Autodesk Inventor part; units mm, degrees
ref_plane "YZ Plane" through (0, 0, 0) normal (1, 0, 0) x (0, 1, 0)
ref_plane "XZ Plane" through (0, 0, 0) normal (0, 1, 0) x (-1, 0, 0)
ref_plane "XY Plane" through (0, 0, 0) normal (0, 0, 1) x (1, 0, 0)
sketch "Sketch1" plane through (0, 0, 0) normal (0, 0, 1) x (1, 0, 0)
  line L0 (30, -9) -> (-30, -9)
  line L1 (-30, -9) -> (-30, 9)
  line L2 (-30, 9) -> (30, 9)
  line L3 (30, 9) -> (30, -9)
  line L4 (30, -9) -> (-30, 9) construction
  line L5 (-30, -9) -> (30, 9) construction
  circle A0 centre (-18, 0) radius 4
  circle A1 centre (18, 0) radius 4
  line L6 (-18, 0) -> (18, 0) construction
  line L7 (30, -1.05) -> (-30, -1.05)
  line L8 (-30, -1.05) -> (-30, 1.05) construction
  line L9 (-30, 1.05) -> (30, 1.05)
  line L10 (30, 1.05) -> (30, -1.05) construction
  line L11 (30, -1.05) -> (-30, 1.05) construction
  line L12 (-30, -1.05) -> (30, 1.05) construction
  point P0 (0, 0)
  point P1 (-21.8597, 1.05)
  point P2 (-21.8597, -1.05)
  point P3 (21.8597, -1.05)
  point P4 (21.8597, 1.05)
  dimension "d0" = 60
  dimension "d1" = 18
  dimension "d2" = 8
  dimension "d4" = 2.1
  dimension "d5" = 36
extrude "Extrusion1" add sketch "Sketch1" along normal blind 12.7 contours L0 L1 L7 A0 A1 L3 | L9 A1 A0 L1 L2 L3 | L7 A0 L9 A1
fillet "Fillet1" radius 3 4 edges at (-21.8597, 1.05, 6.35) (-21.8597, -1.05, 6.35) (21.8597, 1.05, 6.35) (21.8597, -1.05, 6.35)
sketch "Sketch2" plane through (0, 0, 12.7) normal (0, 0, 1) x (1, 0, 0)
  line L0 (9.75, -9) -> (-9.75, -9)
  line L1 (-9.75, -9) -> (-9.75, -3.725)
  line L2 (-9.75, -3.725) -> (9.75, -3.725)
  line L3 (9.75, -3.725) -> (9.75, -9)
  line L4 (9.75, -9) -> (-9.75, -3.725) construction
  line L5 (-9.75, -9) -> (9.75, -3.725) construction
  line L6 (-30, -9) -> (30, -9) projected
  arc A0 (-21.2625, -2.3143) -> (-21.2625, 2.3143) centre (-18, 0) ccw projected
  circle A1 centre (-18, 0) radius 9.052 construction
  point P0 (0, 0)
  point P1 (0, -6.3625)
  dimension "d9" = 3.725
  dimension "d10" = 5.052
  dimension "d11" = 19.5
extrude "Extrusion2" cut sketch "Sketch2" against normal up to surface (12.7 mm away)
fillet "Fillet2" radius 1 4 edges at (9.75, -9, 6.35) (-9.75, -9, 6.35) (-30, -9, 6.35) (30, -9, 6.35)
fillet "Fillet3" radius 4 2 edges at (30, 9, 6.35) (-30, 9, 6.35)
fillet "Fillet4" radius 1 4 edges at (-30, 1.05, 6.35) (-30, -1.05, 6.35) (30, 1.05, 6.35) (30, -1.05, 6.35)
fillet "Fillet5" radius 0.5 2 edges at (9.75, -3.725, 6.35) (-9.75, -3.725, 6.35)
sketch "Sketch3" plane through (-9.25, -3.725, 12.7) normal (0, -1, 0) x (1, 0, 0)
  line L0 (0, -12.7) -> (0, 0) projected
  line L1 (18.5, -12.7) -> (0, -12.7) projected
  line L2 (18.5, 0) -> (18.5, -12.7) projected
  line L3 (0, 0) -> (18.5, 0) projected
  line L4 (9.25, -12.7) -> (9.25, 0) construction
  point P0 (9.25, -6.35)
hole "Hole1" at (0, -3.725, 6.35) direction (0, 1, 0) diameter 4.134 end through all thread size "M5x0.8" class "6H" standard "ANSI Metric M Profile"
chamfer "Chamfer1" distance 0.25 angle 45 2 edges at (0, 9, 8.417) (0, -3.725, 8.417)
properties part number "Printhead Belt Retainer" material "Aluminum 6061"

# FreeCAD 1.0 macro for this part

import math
import FreeCAD as App
import Part
import Sketcher

V = App.Vector


def edges_at(feature, points):
    """Names of the edges that pass closest to the given points."""
    edges = feature.Shape.Edges
    near = lambda p: min(range(len(edges)), key=lambda i: edges[i].distToShape(Part.Vertex(*p))[0])
    return sorted({f"Edge{near(p) + 1}" for p in points})


def add_polygon(sketch, points):
    """Adds a closed chain of lines whose ends are joined by coincident constraints."""
    first, n = sketch.GeometryCount, len(points)
    for a, b in zip(points, points[1:] + points[:1]):
        sketch.addGeometry(Part.LineSegment(App.Vector(*a, 0), App.Vector(*b, 0)), False)
    for i in range(n):
        sketch.addConstraint(Sketcher.Constraint("Coincident", first + i, 2, first + (i + 1) % n, 1))

doc = App.newDocument("Part")
body = doc.addObject("PartDesign::Body", "Body")

# Sketch on XY plane
sketch1 = body.newObject("Sketcher::SketchObject", "Sketch")
sketch1.AttachmentSupport = (doc.getObject("XY_Plane"), [""])
sketch1.MapMode = "FlatFace"
sketch1.addGeometry([
    Part.LineSegment(V(-30, -9, 0), V(30, -9, 0)),  # 0
    Part.LineSegment(V(30, -9, 0), V(30, -1.05, 0)),  # 1
    Part.LineSegment(V(30, -1.05, 0), V(21.859728, -1.05, 0)),  # 2
    Part.ArcOfCircle(Part.Circle(V(18, 0, 0), V(0, 0, 1), 4), math.radians(15.218455), math.radians(344.781545)),  # 3
    Part.LineSegment(V(21.859728, 1.05, 0), V(30, 1.05, 0)),  # 4
    Part.LineSegment(V(30, 1.05, 0), V(30, 9, 0)),  # 5
    Part.LineSegment(V(30, 9, 0), V(-30, 9, 0)),  # 6
    Part.LineSegment(V(-30, 9, 0), V(-30, 1.05, 0)),  # 7
    Part.LineSegment(V(-30, 1.05, 0), V(-21.859728, 1.05, 0)),  # 8
    Part.ArcOfCircle(Part.Circle(V(-18, 0, 0), V(0, 0, 1), 4), math.radians(-164.781545), math.radians(164.781545)),  # 9
    Part.LineSegment(V(-21.859728, -1.05, 0), V(-30, -1.05, 0)),  # 10
    Part.LineSegment(V(-30, -1.05, 0), V(-30, -9, 0)),  # 11
], False)
sketch1.addConstraint([
    Sketcher.Constraint("Coincident", 0, 2, 1, 1),
    Sketcher.Constraint("Coincident", 1, 2, 2, 1),
    Sketcher.Constraint("Coincident", 2, 2, 3, 2),
    Sketcher.Constraint("Coincident", 3, 1, 4, 1),
    Sketcher.Constraint("Coincident", 4, 2, 5, 1),
    Sketcher.Constraint("Coincident", 5, 2, 6, 1),
    Sketcher.Constraint("Coincident", 6, 2, 7, 1),
    Sketcher.Constraint("Coincident", 7, 2, 8, 1),
    Sketcher.Constraint("Coincident", 8, 2, 9, 2),
    Sketcher.Constraint("Coincident", 9, 1, 10, 1),
    Sketcher.Constraint("Coincident", 10, 2, 11, 1),
    Sketcher.Constraint("Coincident", 11, 2, 0, 1),
    Sketcher.Constraint("Horizontal", 0),
    Sketcher.Constraint("Vertical", 1),
    Sketcher.Constraint("Horizontal", 2),
    Sketcher.Constraint("Horizontal", 4),
    Sketcher.Constraint("Vertical", 5),
    Sketcher.Constraint("Horizontal", 6),
    Sketcher.Constraint("Vertical", 7),
    Sketcher.Constraint("Horizontal", 8),
    Sketcher.Constraint("Horizontal", 10),
    Sketcher.Constraint("Vertical", 11),
    Sketcher.Constraint("Equal", 3, 9),
    Sketcher.Constraint("Symmetric", 3, 3, 9, 3, -1, 1),
    Sketcher.Constraint("Symmetric", 0, 2, 6, 2, -1, 1),
    Sketcher.Constraint("Symmetric", 4, 2, 10, 2, -1, 1),
    Sketcher.Constraint("Symmetric", 4, 2, 7, 2, -2),
    Sketcher.Constraint("Symmetric", 2, 2, 9, 1, -2),
    Sketcher.Constraint("Radius", 3, 4.0),
    Sketcher.Constraint("DistanceX", 0, 1, 0, 2, 60.0),
    Sketcher.Constraint("DistanceX", -1, 1, 3, 3, 18.0),
    Sketcher.Constraint("DistanceY", 2, 2, 3, 1, 2.1),
    Sketcher.Constraint("DistanceY", 0, 2, -1, 1, 9.0),
])
pad1 = body.newObject("PartDesign::Pad", "Pad")
pad1.Profile = sketch1
pad1.Length = 12.7
doc.recompute()

fillet = body.newObject("PartDesign::Fillet", "Fillet")
fillet.Base = (pad1, edges_at(pad1, [
    (-21.86, 1.05, 6.35),
    (-21.86, -1.05, 6.35),
    (21.86, 1.05, 6.35),
    (21.86, -1.05, 6.35),
]))
fillet.Radius = 3

# Sketch on XY plane
sketch2 = body.newObject("Sketcher::SketchObject", "Sketch001")
sketch2.AttachmentSupport = (doc.getObject("XY_Plane"), [""])
sketch2.MapMode = "FlatFace"
sketch2.AttachmentOffset = App.Placement(V(0, 0, 12.7), App.Rotation())
add_polygon(sketch2, [(-9.75, -9), (9.75, -9), (9.75, -3.725), (-9.75, -3.725)])  # lines 0-3
sketch2.addConstraint([
    Sketcher.Constraint("Horizontal", 0),
    Sketcher.Constraint("Vertical", 1),
    Sketcher.Constraint("Horizontal", 2),
    Sketcher.Constraint("Vertical", 3),
    Sketcher.Constraint("DistanceX", 0, 1, 0, 2, 19.5),
    Sketcher.Constraint("DistanceY", 1, 2, -1, 1, 3.725),
    Sketcher.Constraint("DistanceY", 0, 2, -1, 1, 9.0),
    Sketcher.Constraint("DistanceX", -1, 1, 0, 2, 9.75),
])
pocket1 = body.newObject("PartDesign::Pocket", "Pocket")
pocket1.Profile = sketch2
pocket1.Length = 12.7
doc.recompute()

fillet2 = body.newObject("PartDesign::Fillet", "Fillet001")
fillet2.Base = (pocket1, edges_at(pocket1, [
    (9.75, -9, 6.35),
    (-9.75, -9, 6.35),
    (-30, -9, 6.35),
    (30, -9, 6.35),
]))
fillet2.Radius = 1
doc.recompute()

fillet3 = body.newObject("PartDesign::Fillet", "Fillet002")
fillet3.Base = (fillet2, edges_at(fillet2, [(30, 9, 6.35), (-30, 9, 6.35)]))
fillet3.Radius = 4
doc.recompute()

fillet4 = body.newObject("PartDesign::Fillet", "Fillet003")
fillet4.Base = (fillet3, edges_at(fillet3, [
    (-30, 1.05, 6.35),
    (-30, -1.05, 6.35),
    (30, 1.05, 6.35),
    (30, -1.05, 6.35),
]))
fillet4.Radius = 1
doc.recompute()

fillet5 = body.newObject("PartDesign::Fillet", "Fillet004")
fillet5.Base = (fillet4, edges_at(fillet4, [(9.75, -3.725, 6.35), (-9.75, -3.725, 6.35)]))
fillet5.Radius = 0.5

# Sketch on XZ plane
sketch3 = body.newObject("Sketcher::SketchObject", "Sketch002")
sketch3.AttachmentSupport = (doc.getObject("XZ_Plane"), [""])
sketch3.MapMode = "FlatFace"
sketch3.AttachmentOffset = App.Placement(V(0, 0, 3.725), App.Rotation())
sketch3.addGeometry(Part.Circle(V(0, 6.35, 0), V(0, 0, 1), 2.067), False)
sketch3.addConstraint([
    Sketcher.Constraint("PointOnObject", 0, 3, -2),
    Sketcher.Constraint("Diameter", 0, 4.134),
    Sketcher.Constraint("DistanceY", -1, 1, 0, 3, 6.35),
])
doc.recompute()
hole = body.newObject("PartDesign::Hole", "Hole")
hole.Profile = sketch3
hole.ThreadType = "None"
hole.Diameter = 4.134
hole.DepthType = "ThroughAll"
doc.recompute()

chamfer = body.newObject("PartDesign::Chamfer", "Chamfer")
chamfer.Base = (hole, edges_at(hole, [(0, 9, 8.417), (0, -3.725, 8.417)]))
chamfer.Size = 0.25

doc.recompute()
